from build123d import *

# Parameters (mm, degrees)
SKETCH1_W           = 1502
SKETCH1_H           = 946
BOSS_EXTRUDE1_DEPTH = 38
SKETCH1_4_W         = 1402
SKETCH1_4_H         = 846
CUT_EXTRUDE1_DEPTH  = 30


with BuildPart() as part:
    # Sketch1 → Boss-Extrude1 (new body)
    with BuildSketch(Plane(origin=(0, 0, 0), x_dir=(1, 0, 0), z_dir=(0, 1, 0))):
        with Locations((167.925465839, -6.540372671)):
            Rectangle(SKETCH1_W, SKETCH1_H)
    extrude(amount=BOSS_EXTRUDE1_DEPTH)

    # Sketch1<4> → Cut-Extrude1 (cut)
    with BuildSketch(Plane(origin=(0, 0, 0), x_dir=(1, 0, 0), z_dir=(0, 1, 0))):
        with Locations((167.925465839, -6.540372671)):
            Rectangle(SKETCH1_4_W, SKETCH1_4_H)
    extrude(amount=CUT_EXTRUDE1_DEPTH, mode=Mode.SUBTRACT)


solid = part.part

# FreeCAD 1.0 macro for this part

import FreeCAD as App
import Part
import Sketcher
Q = App.Units.Quantity

doc = App.newDocument("Part")
body = doc.addObject("PartDesign::Body", "Body")

sketch1 = body.newObject("Sketcher::SketchObject", "Sketch")
sketch1.AttachmentSupport = (doc.getObject("XZ_Plane"), [""])
sketch1.MapMode = "FlatFace"
sketch1.addGeometry(Part.LineSegment(App.Vector(-583, -466, 0), App.Vector(-583, 480, 0)), False)
sketch1.addGeometry(Part.LineSegment(App.Vector(-583, 480, 0), App.Vector(919, 480, 0)), False)
sketch1.addGeometry(Part.LineSegment(App.Vector(919, 480, 0), App.Vector(919, -466, 0)), False)
sketch1.addGeometry(Part.LineSegment(App.Vector(919, -466, 0), App.Vector(-583, -466, 0)), False)
sketch1.addConstraint(Sketcher.Constraint("Coincident", 0, 2, 1, 1))
sketch1.addConstraint(Sketcher.Constraint("Coincident", 1, 2, 2, 1))
sketch1.addConstraint(Sketcher.Constraint("Coincident", 2, 2, 3, 1))
sketch1.addConstraint(Sketcher.Constraint("Coincident", 3, 2, 0, 1))
sketch1.addConstraint(Sketcher.Constraint("Vertical", 0))
sketch1.addConstraint(Sketcher.Constraint("Horizontal", 1))
sketch1.addConstraint(Sketcher.Constraint("Vertical", 2))
sketch1.addConstraint(Sketcher.Constraint("Horizontal", 3))
sketch1.addConstraint(Sketcher.Constraint("DistanceX", 1, 1, 1, 2, Q("1502 mm")))
sketch1.addConstraint(Sketcher.Constraint("DistanceY", 0, 1, 0, 2, Q("946 mm")))
sketch1.addConstraint(Sketcher.Constraint("DistanceX", 0, 2, -1, 1, Q("583.074534 mm")))
sketch1.addConstraint(Sketcher.Constraint("DistanceY", -1, 1, 0, 2, Q("479.540373 mm")))
pad1 = body.newObject("PartDesign::Pad", "Pad")
pad1.Profile = sketch1
pad1.Length = 38
pad1.Reversed = True

sketch2 = body.newObject("Sketcher::SketchObject", "Sketch001")
sketch2.AttachmentSupport = (doc.getObject("XZ_Plane"), [""])
sketch2.MapMode = "FlatFace"
sketch2.addGeometry(Part.LineSegment(App.Vector(-533, -416, 0), App.Vector(-533, 430, 0)), False)
sketch2.addGeometry(Part.LineSegment(App.Vector(-533, 430, 0), App.Vector(869, 430, 0)), False)
sketch2.addGeometry(Part.LineSegment(App.Vector(869, 430, 0), App.Vector(869, -416, 0)), False)
sketch2.addGeometry(Part.LineSegment(App.Vector(869, -416, 0), App.Vector(-533, -416, 0)), False)
sketch2.addConstraint(Sketcher.Constraint("Coincident", 0, 2, 1, 1))
sketch2.addConstraint(Sketcher.Constraint("Coincident", 1, 2, 2, 1))
sketch2.addConstraint(Sketcher.Constraint("Coincident", 2, 2, 3, 1))
sketch2.addConstraint(Sketcher.Constraint("Coincident", 3, 2, 0, 1))
sketch2.addConstraint(Sketcher.Constraint("Vertical", 0))
sketch2.addConstraint(Sketcher.Constraint("Horizontal", 1))
sketch2.addConstraint(Sketcher.Constraint("Vertical", 2))
sketch2.addConstraint(Sketcher.Constraint("Horizontal", 3))
sketch2.addConstraint(Sketcher.Constraint("DistanceX", 1, 1, 1, 2, Q("1402 mm")))
sketch2.addConstraint(Sketcher.Constraint("DistanceY", 0, 1, 0, 2, Q("846 mm")))
sketch2.addConstraint(Sketcher.Constraint("DistanceX", 0, 2, -1, 1, Q("533.074534 mm")))
sketch2.addConstraint(Sketcher.Constraint("DistanceY", -1, 1, 0, 2, Q("429.540373 mm")))
pocket1 = body.newObject("PartDesign::Pocket", "Pocket")
pocket1.Profile = sketch2
pocket1.Length = 30

doc.recompute()
